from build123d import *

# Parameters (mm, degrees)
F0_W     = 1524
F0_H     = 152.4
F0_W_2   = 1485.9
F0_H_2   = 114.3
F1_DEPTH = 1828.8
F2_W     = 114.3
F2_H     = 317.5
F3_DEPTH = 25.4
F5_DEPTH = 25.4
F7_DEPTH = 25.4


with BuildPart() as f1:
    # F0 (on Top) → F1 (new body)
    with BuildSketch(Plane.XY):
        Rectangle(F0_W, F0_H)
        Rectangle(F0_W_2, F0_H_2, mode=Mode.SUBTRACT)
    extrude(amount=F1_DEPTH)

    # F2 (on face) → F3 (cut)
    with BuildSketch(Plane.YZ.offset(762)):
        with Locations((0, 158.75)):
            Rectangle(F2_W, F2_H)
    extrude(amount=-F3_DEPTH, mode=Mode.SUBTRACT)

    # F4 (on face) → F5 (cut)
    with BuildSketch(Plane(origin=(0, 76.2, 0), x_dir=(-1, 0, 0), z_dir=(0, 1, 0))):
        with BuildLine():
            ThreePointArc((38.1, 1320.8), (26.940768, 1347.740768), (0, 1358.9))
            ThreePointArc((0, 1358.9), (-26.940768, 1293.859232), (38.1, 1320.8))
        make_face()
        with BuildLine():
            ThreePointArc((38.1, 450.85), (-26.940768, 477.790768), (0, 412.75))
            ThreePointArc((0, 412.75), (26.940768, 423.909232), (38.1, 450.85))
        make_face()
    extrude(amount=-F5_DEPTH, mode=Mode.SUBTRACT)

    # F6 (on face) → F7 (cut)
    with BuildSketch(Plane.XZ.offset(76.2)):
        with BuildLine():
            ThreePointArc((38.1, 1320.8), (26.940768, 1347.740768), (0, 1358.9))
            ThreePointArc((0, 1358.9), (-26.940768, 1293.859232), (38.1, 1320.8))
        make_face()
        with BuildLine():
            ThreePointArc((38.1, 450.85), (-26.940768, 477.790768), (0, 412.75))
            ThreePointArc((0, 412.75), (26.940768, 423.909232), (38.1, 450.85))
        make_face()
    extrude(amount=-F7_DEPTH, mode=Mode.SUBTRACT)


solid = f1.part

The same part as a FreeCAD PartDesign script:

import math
import FreeCAD as App
import Part
import Sketcher

V = App.Vector
Q = App.Units.Quantity


def add_polygon(sketch, points):
    """Adds a closed chain of lines whose ends are joined by coincident constraints."""
    first, n = sketch.GeometryCount, len(points)
    for a, b in zip(points, points[1:] + points[:1]):
        sketch.addGeometry(Part.LineSegment(App.Vector(*a, 0), App.Vector(*b, 0)), False)
    for i in range(n):
        sketch.addConstraint(Sketcher.Constraint("Coincident", first + i, 2, first + (i + 1) % n, 1))

doc = App.newDocument("Part")
body = doc.addObject("PartDesign::Body", "Body")

sketch1 = body.newObject("Sketcher::SketchObject", "Sketch")
sketch1.AttachmentSupport = (doc.getObject("XY_Plane"), [""])
sketch1.MapMode = "FlatFace"
add_polygon(sketch1, [(-762, 76), (-762, -76), (762, -76), (762, 76)])
add_polygon(sketch1, [(743, -57), (-743, -57), (-743, 57), (743, 57)])
sketch1.addConstraint(Sketcher.Constraint("Vertical", 0))
sketch1.addConstraint(Sketcher.Constraint("Horizontal", 1))
sketch1.addConstraint(Sketcher.Constraint("Vertical", 2))
sketch1.addConstraint(Sketcher.Constraint("Horizontal", 3))
sketch1.addConstraint(Sketcher.Constraint("Horizontal", 4))
sketch1.addConstraint(Sketcher.Constraint("Vertical", 5))
sketch1.addConstraint(Sketcher.Constraint("Horizontal", 6))
sketch1.addConstraint(Sketcher.Constraint("Vertical", 7))
sketch1.addConstraint(Sketcher.Constraint("Symmetric", 0, 2, 2, 2, -1, 1))
sketch1.addConstraint(Sketcher.Constraint("Symmetric", 4, 2, 6, 2, -1, 1))
sketch1.addConstraint(Sketcher.Constraint("DistanceX", 1, 1, 1, 2, Q("60 in")))
sketch1.addConstraint(Sketcher.Constraint("DistanceY", 0, 2, 0, 1, Q("6 in")))
sketch1.addConstraint(Sketcher.Constraint("DistanceX", 4, 2, 4, 1, Q("58.5 in")))
sketch1.addConstraint(Sketcher.Constraint("DistanceY", 5, 1, 5, 2, Q("4.5 in")))
pad1 = body.newObject("PartDesign::Pad", "Pad")
pad1.Profile = sketch1
pad1.Length = Q("72 in")

sketch2 = body.newObject("Sketcher::SketchObject", "Sketch001")
sketch2.AttachmentSupport = (doc.getObject("YZ_Plane"), [""])
sketch2.MapMode = "FlatFace"
sketch2.AttachmentOffset = App.Placement(V(0, 0, 30 * 25.4), App.Rotation())
add_polygon(sketch2, [(-57, 318), (-57, 0), (57, 0), (57, 318)])
sketch2.addConstraint(Sketcher.Constraint("Vertical", 0))
sketch2.addConstraint(Sketcher.Constraint("Horizontal", 1))
sketch2.addConstraint(Sketcher.Constraint("Vertical", 2))
sketch2.addConstraint(Sketcher.Constraint("Horizontal", 3))
sketch2.addConstraint(Sketcher.Constraint("Symmetric", 0, 2, 1, 2, -1, 1))
sketch2.addConstraint(Sketcher.Constraint("DistanceX", 1, 1, 1, 2, Q("4.5 in")))
sketch2.addConstraint(Sketcher.Constraint("DistanceY", 0, 2, 0, 1, Q("12.5 in")))
pocket1 = body.newObject("PartDesign::Pocket", "Pocket")
pocket1.Profile = sketch2
pocket1.Length = Q("1 in")

sketch3 = body.newObject("Sketcher::SketchObject", "Sketch002")
sketch3.AttachmentSupport = (doc.getObject("XZ_Plane"), [""])
sketch3.MapMode = "FlatFace"
sketch3.AttachmentOffset = App.Placement(V(0, 0, -3 * 25.4), App.Rotation())
sketch3.addGeometry(Part.ArcOfCircle(Part.Circle(V(0, 1321, 0), V(0, 0, 1), 38), math.radians(90), math.radians(180)), False)
sketch3.addGeometry(Part.ArcOfCircle(Part.Circle(V(0, 1321, 0), V(0, 0, 1), 38), math.radians(-180), math.radians(90)), False)
sketch3.addGeometry(Part.ArcOfCircle(Part.Circle(V(0, 451, 0), V(0, 0, 1), 38), math.radians(-90), math.radians(180)), False)
sketch3.addGeometry(Part.ArcOfCircle(Part.Circle(V(0, 451, 0), V(0, 0, 1), 38), math.radians(-180), math.radians(-90)), False)
sketch3.addConstraint(Sketcher.Constraint("Tangent", 0, 1, 1, 2))
sketch3.addConstraint(Sketcher.Constraint("Coincident", 1, 1, 0, 2))
sketch3.addConstraint(Sketcher.Constraint("Tangent", 2, 1, 3, 2))
sketch3.addConstraint(Sketcher.Constraint("Coincident", 3, 1, 2, 2))
sketch3.addConstraint(Sketcher.Constraint("Equal", 1, 2))
sketch3.addConstraint(Sketcher.Constraint("PointOnObject", 0, 3, -2))
sketch3.addConstraint(Sketcher.Constraint("PointOnObject", 2, 3, -2))
sketch3.addConstraint(Sketcher.Constraint("PointOnObject", 0, 1, -2))
sketch3.addConstraint(Sketcher.Constraint("PointOnObject", 2, 1, -2))
sketch3.addConstraint(Sketcher.Constraint("Horizontal", 0, 3, 1, 1))
sketch3.addConstraint(Sketcher.Constraint("Horizontal", 2, 3, 3, 1))
sketch3.addConstraint(Sketcher.Constraint("Radius", 0, Q("1.5 in")))
sketch3.addConstraint(Sketcher.Constraint("DistanceY", -1, 1, 0, 3, Q("52 in")))
sketch3.addConstraint(Sketcher.Constraint("DistanceY", -1, 1, 2, 3, Q("17.75 in")))
pocket2 = body.newObject("PartDesign::Pocket", "Pocket001")
pocket2.Profile = sketch3
pocket2.Length = Q("1 in")
pocket2.Reversed = True

sketch4 = body.newObject("Sketcher::SketchObject", "Sketch003")
sketch4.AttachmentSupport = (doc.getObject("XZ_Plane"), [""])
sketch4.MapMode = "FlatFace"
sketch4.AttachmentOffset = App.Placement(V(0, 0, 3 * 25.4), App.Rotation())
sketch4.addGeometry(Part.ArcOfCircle(Part.Circle(V(0, 1321, 0), V(0, 0, 1), 38), math.radians(0), math.radians(90)), False)
sketch4.addGeometry(Part.ArcOfCircle(Part.Circle(V(0, 1321, 0), V(0, 0, 1), 38), math.radians(90), math.radians(360)), False)
sketch4.addGeometry(Part.ArcOfCircle(Part.Circle(V(0, 451, 0), V(0, 0, 1), 38), math.radians(0), math.radians(270)), False)
sketch4.addGeometry(Part.ArcOfCircle(Part.Circle(V(0, 451, 0), V(0, 0, 1), 38), math.radians(-90), math.radians(0)), False)
sketch4.addConstraint(Sketcher.Constraint("Tangent", 0, 1, 1, 2))
sketch4.addConstraint(Sketcher.Constraint("Coincident", 1, 1, 0, 2))
sketch4.addConstraint(Sketcher.Constraint("Tangent", 2, 1, 3, 2))
sketch4.addConstraint(Sketcher.Constraint("Coincident", 3, 1, 2, 2))
sketch4.addConstraint(Sketcher.Constraint("Equal", 1, 2))
sketch4.addConstraint(Sketcher.Constraint("PointOnObject", 0, 3, -2))
sketch4.addConstraint(Sketcher.Constraint("PointOnObject", 2, 3, -2))
sketch4.addConstraint(Sketcher.Constraint("PointOnObject", 1, 1, -2))
sketch4.addConstraint(Sketcher.Constraint("PointOnObject", 3, 1, -2))
sketch4.addConstraint(Sketcher.Constraint("Horizontal", 1, 3, 0, 1))
sketch4.addConstraint(Sketcher.Constraint("Horizontal", 3, 3, 2, 1))
sketch4.addConstraint(Sketcher.Constraint("Radius", 0, Q("1.5 in")))
sketch4.addConstraint(Sketcher.Constraint("DistanceY", -1, 1, 0, 3, Q("52 in")))
sketch4.addConstraint(Sketcher.Constraint("DistanceY", -1, 1, 2, 3, Q("17.75 in")))
pocket3 = body.newObject("PartDesign::Pocket", "Pocket002")
pocket3.Profile = sketch4
pocket3.Length = Q("1 in")

doc.recompute()
